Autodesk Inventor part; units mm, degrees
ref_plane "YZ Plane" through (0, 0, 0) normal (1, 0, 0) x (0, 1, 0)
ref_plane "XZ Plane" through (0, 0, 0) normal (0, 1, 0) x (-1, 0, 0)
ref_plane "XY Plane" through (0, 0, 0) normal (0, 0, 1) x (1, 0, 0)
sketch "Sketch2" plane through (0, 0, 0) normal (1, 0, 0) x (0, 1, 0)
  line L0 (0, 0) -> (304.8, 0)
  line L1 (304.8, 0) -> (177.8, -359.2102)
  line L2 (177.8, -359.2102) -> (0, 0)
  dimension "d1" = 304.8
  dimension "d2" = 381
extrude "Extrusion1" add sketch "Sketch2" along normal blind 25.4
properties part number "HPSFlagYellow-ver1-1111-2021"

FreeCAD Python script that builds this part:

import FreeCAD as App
import Part
import Sketcher

V = App.Vector
Q = App.Units.Quantity

doc = App.newDocument("Part")
body = doc.addObject("PartDesign::Body", "Body")

# Sketch on YZ plane
sketch1 = doc.addObject("Sketcher::SketchObject", "Sketch")
body.addObject(sketch1)
sketch1.AttachmentSupport = (doc.YZ_Plane, [""])
sketch1.MapMode = "FlatFace"
sketch1.addGeometry([
    Part.LineSegment(V(305, 0, 0), V(0, 0, 0)),
    Part.LineSegment(V(0, 0, 0), V(178, -359, 0)),
    Part.LineSegment(V(178, -359, 0), V(305, 0, 0)),
], False)
sketch1.addConstraint([
    Sketcher.Constraint("Coincident", 0, 2, 1, 1),
    Sketcher.Constraint("Coincident", 1, 2, 2, 1),
    Sketcher.Constraint("Coincident", 2, 2, 0, 1),
    Sketcher.Constraint("Horizontal", 0),
    Sketcher.Constraint("Coincident", 0, 2, -1, 1),
    Sketcher.Constraint("DistanceX", 0, 2, 0, 1, Q("12 in")),
    Sketcher.Constraint("Distance", 2, Q("15 in")),
    Sketcher.Constraint("DistanceX", -1, 1, 1, 2, Q("7 in")),
])
pad1 = doc.addObject("PartDesign::Pad", "Pad")
body.addObject(pad1)
pad1.Profile = sketch1
pad1.Length = Q("1 in")

doc.recompute()
